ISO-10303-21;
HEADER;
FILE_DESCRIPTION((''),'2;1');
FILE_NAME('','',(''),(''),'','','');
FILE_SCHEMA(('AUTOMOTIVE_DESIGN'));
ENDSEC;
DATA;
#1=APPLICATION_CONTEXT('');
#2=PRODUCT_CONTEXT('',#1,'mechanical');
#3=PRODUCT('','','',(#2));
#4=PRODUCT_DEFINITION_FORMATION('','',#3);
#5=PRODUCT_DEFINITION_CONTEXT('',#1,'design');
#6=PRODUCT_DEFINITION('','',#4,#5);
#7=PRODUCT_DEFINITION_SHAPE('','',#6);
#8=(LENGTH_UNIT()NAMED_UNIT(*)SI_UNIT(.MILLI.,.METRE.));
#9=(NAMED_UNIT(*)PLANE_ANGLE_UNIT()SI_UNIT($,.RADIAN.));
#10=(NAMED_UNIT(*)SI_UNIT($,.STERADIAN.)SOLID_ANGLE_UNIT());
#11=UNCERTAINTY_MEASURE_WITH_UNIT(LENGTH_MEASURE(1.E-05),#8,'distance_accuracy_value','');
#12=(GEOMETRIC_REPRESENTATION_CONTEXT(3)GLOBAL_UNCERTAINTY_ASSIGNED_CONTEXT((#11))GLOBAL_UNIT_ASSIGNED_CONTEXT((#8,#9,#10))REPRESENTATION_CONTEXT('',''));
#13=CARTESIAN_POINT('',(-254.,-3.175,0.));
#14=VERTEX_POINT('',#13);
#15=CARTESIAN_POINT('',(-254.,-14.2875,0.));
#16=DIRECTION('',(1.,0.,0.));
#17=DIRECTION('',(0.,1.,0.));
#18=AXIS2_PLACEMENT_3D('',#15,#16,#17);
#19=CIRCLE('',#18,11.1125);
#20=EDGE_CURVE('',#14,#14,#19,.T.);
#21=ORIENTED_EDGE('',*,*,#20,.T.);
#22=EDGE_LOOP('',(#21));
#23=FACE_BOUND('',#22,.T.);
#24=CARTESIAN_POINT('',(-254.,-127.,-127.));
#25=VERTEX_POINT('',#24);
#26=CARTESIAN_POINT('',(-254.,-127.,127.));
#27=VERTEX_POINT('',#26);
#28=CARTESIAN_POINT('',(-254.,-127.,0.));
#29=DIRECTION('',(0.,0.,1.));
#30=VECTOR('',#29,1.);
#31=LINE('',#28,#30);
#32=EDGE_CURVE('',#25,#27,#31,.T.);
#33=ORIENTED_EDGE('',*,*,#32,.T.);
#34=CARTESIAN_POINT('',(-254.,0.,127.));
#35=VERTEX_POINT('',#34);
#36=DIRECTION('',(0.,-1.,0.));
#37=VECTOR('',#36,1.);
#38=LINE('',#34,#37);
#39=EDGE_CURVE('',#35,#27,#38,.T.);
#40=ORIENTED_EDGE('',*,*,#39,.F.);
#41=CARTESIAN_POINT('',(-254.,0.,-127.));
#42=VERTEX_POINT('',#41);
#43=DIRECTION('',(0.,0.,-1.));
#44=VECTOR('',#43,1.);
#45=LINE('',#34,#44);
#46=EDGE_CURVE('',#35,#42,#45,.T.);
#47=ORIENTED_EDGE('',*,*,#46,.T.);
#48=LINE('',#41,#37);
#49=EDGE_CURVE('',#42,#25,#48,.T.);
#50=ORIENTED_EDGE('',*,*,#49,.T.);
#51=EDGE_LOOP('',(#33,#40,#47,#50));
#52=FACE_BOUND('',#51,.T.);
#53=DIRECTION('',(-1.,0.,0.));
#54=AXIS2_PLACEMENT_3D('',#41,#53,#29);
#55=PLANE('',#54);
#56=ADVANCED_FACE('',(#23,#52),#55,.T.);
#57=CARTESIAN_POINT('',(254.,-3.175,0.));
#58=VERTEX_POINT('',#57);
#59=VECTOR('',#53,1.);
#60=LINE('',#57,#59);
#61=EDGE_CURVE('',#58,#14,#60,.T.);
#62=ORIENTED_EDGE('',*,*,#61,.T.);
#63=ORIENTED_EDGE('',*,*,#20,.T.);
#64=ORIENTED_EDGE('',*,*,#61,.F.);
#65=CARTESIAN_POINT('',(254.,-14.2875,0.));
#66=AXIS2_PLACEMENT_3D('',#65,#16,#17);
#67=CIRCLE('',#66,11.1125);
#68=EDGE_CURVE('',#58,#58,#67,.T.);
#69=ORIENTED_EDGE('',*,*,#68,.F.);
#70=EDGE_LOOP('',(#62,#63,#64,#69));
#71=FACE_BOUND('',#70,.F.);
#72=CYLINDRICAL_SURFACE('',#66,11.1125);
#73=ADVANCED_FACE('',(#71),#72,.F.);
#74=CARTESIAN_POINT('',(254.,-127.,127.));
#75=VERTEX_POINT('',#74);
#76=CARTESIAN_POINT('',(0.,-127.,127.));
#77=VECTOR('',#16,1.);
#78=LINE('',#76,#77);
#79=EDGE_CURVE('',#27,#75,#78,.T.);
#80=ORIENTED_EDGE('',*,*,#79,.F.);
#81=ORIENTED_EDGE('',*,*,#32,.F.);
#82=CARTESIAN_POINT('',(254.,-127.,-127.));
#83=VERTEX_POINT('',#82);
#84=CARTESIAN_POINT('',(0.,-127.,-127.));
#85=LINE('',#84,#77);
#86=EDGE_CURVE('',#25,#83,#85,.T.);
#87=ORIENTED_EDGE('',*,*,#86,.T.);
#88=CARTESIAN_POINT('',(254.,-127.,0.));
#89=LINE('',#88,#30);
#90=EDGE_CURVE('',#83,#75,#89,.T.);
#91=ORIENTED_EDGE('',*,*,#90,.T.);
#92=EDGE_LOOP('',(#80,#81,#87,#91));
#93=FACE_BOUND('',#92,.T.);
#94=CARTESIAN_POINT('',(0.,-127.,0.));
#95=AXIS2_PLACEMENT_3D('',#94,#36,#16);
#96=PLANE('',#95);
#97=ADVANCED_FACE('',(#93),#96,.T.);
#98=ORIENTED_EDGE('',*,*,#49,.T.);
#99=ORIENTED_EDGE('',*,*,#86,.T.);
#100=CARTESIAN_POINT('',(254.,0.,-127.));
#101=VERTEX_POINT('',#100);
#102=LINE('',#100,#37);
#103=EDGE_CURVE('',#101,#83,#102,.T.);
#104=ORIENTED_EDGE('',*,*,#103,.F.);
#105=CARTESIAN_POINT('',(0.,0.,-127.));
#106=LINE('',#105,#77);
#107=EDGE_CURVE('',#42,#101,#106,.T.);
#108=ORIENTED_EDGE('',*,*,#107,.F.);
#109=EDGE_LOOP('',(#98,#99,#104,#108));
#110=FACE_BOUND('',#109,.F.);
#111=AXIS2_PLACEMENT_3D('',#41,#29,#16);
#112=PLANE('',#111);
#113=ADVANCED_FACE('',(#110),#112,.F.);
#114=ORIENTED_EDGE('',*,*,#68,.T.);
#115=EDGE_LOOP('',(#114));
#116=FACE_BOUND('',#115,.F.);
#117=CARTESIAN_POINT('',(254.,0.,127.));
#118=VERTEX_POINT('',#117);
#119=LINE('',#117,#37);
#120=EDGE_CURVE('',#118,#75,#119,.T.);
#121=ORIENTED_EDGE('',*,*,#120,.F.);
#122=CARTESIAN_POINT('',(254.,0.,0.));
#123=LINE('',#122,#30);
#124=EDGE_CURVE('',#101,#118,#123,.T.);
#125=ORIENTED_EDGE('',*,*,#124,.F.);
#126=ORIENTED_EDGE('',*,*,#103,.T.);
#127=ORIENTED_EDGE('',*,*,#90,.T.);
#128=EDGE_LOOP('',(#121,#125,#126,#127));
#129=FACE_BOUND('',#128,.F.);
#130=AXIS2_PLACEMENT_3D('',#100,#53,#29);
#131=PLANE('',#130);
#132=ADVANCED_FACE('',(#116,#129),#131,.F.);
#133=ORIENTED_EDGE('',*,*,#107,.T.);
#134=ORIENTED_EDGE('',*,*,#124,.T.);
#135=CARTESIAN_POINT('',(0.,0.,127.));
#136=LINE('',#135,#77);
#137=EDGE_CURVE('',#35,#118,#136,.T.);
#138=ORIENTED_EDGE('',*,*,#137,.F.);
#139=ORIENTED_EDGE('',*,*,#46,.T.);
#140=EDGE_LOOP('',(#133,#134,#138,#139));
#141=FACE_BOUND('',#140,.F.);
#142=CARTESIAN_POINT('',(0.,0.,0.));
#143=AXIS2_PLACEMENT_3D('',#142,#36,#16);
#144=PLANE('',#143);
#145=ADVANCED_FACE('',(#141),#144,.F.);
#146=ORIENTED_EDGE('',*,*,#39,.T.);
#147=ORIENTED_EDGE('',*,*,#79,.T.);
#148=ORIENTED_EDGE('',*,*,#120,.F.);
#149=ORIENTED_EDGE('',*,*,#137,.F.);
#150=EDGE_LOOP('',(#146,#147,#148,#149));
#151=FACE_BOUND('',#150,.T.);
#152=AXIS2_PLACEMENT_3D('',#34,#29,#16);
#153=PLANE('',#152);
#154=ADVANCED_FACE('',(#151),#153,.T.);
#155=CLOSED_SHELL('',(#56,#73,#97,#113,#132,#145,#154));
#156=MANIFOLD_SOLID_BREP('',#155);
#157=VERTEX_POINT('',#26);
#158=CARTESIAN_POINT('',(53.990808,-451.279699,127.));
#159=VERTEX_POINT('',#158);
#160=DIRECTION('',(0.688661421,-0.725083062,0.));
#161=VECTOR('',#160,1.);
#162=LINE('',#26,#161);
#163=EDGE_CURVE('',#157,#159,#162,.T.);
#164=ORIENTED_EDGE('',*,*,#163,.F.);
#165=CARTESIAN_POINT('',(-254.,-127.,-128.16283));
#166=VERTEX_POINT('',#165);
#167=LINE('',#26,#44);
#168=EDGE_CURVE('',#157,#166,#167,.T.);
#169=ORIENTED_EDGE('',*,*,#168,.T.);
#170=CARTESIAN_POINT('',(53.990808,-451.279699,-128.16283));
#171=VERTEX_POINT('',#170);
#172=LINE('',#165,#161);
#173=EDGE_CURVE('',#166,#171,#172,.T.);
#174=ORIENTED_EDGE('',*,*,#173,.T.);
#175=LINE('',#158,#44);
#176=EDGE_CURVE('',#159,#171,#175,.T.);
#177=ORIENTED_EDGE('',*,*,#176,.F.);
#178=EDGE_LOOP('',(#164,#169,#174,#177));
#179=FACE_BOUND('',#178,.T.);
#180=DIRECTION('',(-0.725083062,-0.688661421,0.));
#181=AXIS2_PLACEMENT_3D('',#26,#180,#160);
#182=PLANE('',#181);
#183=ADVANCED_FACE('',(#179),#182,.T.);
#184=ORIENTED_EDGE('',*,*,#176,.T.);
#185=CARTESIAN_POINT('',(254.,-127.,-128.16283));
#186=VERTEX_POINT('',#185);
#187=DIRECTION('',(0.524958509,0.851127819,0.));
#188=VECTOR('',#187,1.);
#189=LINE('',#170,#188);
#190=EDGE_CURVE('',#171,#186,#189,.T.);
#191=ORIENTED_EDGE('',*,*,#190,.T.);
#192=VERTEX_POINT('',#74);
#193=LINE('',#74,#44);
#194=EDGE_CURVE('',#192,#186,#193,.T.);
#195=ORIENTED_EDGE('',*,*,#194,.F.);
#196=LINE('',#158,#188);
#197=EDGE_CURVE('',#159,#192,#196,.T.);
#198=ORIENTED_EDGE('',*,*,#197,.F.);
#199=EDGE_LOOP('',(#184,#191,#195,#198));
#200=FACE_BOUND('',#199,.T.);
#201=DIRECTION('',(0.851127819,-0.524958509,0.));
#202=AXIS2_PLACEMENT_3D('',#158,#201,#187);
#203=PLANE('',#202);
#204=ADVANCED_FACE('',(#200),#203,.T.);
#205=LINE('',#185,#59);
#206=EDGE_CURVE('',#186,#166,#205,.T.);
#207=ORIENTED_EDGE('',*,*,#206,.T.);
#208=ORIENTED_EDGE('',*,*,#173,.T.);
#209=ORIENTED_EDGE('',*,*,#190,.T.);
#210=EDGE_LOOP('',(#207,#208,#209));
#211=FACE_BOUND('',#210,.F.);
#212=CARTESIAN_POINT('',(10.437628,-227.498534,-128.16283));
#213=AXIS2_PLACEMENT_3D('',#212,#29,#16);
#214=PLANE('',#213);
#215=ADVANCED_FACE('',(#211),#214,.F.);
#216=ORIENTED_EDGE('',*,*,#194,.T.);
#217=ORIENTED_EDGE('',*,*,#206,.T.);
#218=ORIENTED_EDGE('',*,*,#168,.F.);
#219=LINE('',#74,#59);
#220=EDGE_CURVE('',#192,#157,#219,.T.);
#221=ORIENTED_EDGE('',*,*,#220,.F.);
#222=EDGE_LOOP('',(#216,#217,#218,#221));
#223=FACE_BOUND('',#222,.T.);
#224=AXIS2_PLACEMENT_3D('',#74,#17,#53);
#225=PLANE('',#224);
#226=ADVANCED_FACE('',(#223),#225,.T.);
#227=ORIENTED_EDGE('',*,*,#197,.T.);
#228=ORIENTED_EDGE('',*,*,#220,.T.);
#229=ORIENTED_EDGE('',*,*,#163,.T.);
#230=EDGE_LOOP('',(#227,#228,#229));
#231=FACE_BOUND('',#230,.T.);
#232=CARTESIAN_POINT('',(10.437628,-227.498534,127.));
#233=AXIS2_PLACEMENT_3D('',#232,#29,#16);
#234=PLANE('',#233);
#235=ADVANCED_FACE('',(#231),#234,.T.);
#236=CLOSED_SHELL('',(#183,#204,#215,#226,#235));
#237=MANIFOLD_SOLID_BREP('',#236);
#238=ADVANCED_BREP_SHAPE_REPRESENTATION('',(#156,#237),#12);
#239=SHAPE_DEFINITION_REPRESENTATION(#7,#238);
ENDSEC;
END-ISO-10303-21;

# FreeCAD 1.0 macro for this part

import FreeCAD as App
import Part
import Sketcher
from FreeCAD import Vector
Q = App.Units.Quantity


def add_polygon(sketch, points):
    """Adds a closed chain of lines whose ends are joined by coincident constraints."""
    first, n = sketch.GeometryCount, len(points)
    for a, b in zip(points, points[1:] + points[:1]):
        sketch.addGeometry(Part.LineSegment(App.Vector(*a, 0), App.Vector(*b, 0)), False)
    for i in range(n):
        sketch.addConstraint(Sketcher.Constraint("Coincident", first + i, 2, first + (i + 1) % n, 1))

doc = App.newDocument("Part")
body = doc.addObject("PartDesign::Body", "Body")

sketch1 = body.newObject("Sketcher::SketchObject", "Sketch")
sketch1.AttachmentSupport = (doc.getObject("XZ_Plane"), [""])
sketch1.MapMode = "FlatFace"
add_polygon(sketch1, [(-254, 127), (-254, -127), (254, -127), (254, 127)])
sketch1.addConstraint(Sketcher.Constraint("Vertical", 0))
sketch1.addConstraint(Sketcher.Constraint("Horizontal", 1))
sketch1.addConstraint(Sketcher.Constraint("Vertical", 2))
sketch1.addConstraint(Sketcher.Constraint("Horizontal", 3))
sketch1.addConstraint(Sketcher.Constraint("Symmetric", 0, 2, 2, 2, -1, 1))
sketch1.addConstraint(Sketcher.Constraint("DistanceX", 1, 1, 1, 2, Q("20 in")))
sketch1.addConstraint(Sketcher.Constraint("DistanceY", 0, 2, 0, 1, Q("10 in")))
pad1 = body.newObject("PartDesign::Pad", "Pad")
pad1.Profile = sketch1
pad1.Length = Q("5 in")

sketch2 = body.newObject("Sketcher::SketchObject", "Sketch001")
sketch2.AttachmentSupport = (doc.getObject("YZ_Plane"), [""])
sketch2.MapMode = "FlatFace"
sketch2.AttachmentOffset = App.Placement(Vector(0, 0, -10 * 25.4), App.Rotation())
sketch2.addGeometry(Part.Circle(Vector(-24, 0, 0), Vector(0, 0, 1), 25), False)
sketch2.addConstraint(Sketcher.Constraint("PointOnObject", 0, 3, -1))
sketch2.addConstraint(Sketcher.Constraint("Diameter", 0, Q("2 in")))
sketch2.addConstraint(Sketcher.Constraint("DistanceX", 0, 3, -1, 1, Q("23.774409 mm")))
pocket1 = body.newObject("PartDesign::Pocket", "Pocket")
pocket1.Profile = sketch2
pocket1.Length = 897.97855

sketch3 = body.newObject("Sketcher::SketchObject", "Sketch002")
sketch3.AttachmentSupport = (doc.getObject("YZ_Plane"), [""])
sketch3.MapMode = "FlatFace"
sketch3.AttachmentOffset = App.Placement(Vector(0, 0, 10 * 25.4), App.Rotation())
sketch3.addGeometry(Part.Circle(Vector(-14, 0, 0), Vector(0, 0, 1), 11), False)
sketch3.addConstraint(Sketcher.Constraint("PointOnObject", 0, 3, -1))
sketch3.addConstraint(Sketcher.Constraint("Diameter", 0, Q("0.875 in")))
sketch3.addConstraint(Sketcher.Constraint("DistanceX", 0, 3, -1, 1, Q("0.5625 in")))
pocket2 = body.newObject("PartDesign::Pocket", "Pocket001")
pocket2.Profile = sketch3
pocket2.Length = 986.37929
body2 = doc.addObject("PartDesign::Body", "Body001")

sketch4 = body2.newObject("Sketcher::SketchObject", "Sketch003")
sketch4.AttachmentSupport = (doc.getObject("XY_Plane001"), [""])
sketch4.MapMode = "FlatFace"
sketch4.AttachmentOffset = App.Placement(Vector(0, 0, 5 * 25.4), App.Rotation())
add_polygon(sketch4, [(54, -451), (254, -127), (-254, -127)])
sketch4.addConstraint(Sketcher.Constraint("Horizontal", 1))
sketch4.addConstraint(Sketcher.Constraint("DistanceX", 1, 2, 1, 1, Q("20 in")))
sketch4.addConstraint(Sketcher.Constraint("Distance", 0, Q("15 in")))
sketch4.addConstraint(Sketcher.Constraint("DistanceX", -1, 1, 0, 2, Q("10 in")))
sketch4.addConstraint(Sketcher.Constraint("DistanceY", 0, 2, -1, 1, Q("5 in")))
sketch4.addConstraint(Sketcher.Constraint("DistanceY", 2, 2, -1, 1, Q("451.279699 mm")))
pad2 = body2.newObject("PartDesign::Pad", "Pad001")
pad2.Profile = sketch4
pad2.Length = 255.16283
pad2.Reversed = True

doc.recompute()
